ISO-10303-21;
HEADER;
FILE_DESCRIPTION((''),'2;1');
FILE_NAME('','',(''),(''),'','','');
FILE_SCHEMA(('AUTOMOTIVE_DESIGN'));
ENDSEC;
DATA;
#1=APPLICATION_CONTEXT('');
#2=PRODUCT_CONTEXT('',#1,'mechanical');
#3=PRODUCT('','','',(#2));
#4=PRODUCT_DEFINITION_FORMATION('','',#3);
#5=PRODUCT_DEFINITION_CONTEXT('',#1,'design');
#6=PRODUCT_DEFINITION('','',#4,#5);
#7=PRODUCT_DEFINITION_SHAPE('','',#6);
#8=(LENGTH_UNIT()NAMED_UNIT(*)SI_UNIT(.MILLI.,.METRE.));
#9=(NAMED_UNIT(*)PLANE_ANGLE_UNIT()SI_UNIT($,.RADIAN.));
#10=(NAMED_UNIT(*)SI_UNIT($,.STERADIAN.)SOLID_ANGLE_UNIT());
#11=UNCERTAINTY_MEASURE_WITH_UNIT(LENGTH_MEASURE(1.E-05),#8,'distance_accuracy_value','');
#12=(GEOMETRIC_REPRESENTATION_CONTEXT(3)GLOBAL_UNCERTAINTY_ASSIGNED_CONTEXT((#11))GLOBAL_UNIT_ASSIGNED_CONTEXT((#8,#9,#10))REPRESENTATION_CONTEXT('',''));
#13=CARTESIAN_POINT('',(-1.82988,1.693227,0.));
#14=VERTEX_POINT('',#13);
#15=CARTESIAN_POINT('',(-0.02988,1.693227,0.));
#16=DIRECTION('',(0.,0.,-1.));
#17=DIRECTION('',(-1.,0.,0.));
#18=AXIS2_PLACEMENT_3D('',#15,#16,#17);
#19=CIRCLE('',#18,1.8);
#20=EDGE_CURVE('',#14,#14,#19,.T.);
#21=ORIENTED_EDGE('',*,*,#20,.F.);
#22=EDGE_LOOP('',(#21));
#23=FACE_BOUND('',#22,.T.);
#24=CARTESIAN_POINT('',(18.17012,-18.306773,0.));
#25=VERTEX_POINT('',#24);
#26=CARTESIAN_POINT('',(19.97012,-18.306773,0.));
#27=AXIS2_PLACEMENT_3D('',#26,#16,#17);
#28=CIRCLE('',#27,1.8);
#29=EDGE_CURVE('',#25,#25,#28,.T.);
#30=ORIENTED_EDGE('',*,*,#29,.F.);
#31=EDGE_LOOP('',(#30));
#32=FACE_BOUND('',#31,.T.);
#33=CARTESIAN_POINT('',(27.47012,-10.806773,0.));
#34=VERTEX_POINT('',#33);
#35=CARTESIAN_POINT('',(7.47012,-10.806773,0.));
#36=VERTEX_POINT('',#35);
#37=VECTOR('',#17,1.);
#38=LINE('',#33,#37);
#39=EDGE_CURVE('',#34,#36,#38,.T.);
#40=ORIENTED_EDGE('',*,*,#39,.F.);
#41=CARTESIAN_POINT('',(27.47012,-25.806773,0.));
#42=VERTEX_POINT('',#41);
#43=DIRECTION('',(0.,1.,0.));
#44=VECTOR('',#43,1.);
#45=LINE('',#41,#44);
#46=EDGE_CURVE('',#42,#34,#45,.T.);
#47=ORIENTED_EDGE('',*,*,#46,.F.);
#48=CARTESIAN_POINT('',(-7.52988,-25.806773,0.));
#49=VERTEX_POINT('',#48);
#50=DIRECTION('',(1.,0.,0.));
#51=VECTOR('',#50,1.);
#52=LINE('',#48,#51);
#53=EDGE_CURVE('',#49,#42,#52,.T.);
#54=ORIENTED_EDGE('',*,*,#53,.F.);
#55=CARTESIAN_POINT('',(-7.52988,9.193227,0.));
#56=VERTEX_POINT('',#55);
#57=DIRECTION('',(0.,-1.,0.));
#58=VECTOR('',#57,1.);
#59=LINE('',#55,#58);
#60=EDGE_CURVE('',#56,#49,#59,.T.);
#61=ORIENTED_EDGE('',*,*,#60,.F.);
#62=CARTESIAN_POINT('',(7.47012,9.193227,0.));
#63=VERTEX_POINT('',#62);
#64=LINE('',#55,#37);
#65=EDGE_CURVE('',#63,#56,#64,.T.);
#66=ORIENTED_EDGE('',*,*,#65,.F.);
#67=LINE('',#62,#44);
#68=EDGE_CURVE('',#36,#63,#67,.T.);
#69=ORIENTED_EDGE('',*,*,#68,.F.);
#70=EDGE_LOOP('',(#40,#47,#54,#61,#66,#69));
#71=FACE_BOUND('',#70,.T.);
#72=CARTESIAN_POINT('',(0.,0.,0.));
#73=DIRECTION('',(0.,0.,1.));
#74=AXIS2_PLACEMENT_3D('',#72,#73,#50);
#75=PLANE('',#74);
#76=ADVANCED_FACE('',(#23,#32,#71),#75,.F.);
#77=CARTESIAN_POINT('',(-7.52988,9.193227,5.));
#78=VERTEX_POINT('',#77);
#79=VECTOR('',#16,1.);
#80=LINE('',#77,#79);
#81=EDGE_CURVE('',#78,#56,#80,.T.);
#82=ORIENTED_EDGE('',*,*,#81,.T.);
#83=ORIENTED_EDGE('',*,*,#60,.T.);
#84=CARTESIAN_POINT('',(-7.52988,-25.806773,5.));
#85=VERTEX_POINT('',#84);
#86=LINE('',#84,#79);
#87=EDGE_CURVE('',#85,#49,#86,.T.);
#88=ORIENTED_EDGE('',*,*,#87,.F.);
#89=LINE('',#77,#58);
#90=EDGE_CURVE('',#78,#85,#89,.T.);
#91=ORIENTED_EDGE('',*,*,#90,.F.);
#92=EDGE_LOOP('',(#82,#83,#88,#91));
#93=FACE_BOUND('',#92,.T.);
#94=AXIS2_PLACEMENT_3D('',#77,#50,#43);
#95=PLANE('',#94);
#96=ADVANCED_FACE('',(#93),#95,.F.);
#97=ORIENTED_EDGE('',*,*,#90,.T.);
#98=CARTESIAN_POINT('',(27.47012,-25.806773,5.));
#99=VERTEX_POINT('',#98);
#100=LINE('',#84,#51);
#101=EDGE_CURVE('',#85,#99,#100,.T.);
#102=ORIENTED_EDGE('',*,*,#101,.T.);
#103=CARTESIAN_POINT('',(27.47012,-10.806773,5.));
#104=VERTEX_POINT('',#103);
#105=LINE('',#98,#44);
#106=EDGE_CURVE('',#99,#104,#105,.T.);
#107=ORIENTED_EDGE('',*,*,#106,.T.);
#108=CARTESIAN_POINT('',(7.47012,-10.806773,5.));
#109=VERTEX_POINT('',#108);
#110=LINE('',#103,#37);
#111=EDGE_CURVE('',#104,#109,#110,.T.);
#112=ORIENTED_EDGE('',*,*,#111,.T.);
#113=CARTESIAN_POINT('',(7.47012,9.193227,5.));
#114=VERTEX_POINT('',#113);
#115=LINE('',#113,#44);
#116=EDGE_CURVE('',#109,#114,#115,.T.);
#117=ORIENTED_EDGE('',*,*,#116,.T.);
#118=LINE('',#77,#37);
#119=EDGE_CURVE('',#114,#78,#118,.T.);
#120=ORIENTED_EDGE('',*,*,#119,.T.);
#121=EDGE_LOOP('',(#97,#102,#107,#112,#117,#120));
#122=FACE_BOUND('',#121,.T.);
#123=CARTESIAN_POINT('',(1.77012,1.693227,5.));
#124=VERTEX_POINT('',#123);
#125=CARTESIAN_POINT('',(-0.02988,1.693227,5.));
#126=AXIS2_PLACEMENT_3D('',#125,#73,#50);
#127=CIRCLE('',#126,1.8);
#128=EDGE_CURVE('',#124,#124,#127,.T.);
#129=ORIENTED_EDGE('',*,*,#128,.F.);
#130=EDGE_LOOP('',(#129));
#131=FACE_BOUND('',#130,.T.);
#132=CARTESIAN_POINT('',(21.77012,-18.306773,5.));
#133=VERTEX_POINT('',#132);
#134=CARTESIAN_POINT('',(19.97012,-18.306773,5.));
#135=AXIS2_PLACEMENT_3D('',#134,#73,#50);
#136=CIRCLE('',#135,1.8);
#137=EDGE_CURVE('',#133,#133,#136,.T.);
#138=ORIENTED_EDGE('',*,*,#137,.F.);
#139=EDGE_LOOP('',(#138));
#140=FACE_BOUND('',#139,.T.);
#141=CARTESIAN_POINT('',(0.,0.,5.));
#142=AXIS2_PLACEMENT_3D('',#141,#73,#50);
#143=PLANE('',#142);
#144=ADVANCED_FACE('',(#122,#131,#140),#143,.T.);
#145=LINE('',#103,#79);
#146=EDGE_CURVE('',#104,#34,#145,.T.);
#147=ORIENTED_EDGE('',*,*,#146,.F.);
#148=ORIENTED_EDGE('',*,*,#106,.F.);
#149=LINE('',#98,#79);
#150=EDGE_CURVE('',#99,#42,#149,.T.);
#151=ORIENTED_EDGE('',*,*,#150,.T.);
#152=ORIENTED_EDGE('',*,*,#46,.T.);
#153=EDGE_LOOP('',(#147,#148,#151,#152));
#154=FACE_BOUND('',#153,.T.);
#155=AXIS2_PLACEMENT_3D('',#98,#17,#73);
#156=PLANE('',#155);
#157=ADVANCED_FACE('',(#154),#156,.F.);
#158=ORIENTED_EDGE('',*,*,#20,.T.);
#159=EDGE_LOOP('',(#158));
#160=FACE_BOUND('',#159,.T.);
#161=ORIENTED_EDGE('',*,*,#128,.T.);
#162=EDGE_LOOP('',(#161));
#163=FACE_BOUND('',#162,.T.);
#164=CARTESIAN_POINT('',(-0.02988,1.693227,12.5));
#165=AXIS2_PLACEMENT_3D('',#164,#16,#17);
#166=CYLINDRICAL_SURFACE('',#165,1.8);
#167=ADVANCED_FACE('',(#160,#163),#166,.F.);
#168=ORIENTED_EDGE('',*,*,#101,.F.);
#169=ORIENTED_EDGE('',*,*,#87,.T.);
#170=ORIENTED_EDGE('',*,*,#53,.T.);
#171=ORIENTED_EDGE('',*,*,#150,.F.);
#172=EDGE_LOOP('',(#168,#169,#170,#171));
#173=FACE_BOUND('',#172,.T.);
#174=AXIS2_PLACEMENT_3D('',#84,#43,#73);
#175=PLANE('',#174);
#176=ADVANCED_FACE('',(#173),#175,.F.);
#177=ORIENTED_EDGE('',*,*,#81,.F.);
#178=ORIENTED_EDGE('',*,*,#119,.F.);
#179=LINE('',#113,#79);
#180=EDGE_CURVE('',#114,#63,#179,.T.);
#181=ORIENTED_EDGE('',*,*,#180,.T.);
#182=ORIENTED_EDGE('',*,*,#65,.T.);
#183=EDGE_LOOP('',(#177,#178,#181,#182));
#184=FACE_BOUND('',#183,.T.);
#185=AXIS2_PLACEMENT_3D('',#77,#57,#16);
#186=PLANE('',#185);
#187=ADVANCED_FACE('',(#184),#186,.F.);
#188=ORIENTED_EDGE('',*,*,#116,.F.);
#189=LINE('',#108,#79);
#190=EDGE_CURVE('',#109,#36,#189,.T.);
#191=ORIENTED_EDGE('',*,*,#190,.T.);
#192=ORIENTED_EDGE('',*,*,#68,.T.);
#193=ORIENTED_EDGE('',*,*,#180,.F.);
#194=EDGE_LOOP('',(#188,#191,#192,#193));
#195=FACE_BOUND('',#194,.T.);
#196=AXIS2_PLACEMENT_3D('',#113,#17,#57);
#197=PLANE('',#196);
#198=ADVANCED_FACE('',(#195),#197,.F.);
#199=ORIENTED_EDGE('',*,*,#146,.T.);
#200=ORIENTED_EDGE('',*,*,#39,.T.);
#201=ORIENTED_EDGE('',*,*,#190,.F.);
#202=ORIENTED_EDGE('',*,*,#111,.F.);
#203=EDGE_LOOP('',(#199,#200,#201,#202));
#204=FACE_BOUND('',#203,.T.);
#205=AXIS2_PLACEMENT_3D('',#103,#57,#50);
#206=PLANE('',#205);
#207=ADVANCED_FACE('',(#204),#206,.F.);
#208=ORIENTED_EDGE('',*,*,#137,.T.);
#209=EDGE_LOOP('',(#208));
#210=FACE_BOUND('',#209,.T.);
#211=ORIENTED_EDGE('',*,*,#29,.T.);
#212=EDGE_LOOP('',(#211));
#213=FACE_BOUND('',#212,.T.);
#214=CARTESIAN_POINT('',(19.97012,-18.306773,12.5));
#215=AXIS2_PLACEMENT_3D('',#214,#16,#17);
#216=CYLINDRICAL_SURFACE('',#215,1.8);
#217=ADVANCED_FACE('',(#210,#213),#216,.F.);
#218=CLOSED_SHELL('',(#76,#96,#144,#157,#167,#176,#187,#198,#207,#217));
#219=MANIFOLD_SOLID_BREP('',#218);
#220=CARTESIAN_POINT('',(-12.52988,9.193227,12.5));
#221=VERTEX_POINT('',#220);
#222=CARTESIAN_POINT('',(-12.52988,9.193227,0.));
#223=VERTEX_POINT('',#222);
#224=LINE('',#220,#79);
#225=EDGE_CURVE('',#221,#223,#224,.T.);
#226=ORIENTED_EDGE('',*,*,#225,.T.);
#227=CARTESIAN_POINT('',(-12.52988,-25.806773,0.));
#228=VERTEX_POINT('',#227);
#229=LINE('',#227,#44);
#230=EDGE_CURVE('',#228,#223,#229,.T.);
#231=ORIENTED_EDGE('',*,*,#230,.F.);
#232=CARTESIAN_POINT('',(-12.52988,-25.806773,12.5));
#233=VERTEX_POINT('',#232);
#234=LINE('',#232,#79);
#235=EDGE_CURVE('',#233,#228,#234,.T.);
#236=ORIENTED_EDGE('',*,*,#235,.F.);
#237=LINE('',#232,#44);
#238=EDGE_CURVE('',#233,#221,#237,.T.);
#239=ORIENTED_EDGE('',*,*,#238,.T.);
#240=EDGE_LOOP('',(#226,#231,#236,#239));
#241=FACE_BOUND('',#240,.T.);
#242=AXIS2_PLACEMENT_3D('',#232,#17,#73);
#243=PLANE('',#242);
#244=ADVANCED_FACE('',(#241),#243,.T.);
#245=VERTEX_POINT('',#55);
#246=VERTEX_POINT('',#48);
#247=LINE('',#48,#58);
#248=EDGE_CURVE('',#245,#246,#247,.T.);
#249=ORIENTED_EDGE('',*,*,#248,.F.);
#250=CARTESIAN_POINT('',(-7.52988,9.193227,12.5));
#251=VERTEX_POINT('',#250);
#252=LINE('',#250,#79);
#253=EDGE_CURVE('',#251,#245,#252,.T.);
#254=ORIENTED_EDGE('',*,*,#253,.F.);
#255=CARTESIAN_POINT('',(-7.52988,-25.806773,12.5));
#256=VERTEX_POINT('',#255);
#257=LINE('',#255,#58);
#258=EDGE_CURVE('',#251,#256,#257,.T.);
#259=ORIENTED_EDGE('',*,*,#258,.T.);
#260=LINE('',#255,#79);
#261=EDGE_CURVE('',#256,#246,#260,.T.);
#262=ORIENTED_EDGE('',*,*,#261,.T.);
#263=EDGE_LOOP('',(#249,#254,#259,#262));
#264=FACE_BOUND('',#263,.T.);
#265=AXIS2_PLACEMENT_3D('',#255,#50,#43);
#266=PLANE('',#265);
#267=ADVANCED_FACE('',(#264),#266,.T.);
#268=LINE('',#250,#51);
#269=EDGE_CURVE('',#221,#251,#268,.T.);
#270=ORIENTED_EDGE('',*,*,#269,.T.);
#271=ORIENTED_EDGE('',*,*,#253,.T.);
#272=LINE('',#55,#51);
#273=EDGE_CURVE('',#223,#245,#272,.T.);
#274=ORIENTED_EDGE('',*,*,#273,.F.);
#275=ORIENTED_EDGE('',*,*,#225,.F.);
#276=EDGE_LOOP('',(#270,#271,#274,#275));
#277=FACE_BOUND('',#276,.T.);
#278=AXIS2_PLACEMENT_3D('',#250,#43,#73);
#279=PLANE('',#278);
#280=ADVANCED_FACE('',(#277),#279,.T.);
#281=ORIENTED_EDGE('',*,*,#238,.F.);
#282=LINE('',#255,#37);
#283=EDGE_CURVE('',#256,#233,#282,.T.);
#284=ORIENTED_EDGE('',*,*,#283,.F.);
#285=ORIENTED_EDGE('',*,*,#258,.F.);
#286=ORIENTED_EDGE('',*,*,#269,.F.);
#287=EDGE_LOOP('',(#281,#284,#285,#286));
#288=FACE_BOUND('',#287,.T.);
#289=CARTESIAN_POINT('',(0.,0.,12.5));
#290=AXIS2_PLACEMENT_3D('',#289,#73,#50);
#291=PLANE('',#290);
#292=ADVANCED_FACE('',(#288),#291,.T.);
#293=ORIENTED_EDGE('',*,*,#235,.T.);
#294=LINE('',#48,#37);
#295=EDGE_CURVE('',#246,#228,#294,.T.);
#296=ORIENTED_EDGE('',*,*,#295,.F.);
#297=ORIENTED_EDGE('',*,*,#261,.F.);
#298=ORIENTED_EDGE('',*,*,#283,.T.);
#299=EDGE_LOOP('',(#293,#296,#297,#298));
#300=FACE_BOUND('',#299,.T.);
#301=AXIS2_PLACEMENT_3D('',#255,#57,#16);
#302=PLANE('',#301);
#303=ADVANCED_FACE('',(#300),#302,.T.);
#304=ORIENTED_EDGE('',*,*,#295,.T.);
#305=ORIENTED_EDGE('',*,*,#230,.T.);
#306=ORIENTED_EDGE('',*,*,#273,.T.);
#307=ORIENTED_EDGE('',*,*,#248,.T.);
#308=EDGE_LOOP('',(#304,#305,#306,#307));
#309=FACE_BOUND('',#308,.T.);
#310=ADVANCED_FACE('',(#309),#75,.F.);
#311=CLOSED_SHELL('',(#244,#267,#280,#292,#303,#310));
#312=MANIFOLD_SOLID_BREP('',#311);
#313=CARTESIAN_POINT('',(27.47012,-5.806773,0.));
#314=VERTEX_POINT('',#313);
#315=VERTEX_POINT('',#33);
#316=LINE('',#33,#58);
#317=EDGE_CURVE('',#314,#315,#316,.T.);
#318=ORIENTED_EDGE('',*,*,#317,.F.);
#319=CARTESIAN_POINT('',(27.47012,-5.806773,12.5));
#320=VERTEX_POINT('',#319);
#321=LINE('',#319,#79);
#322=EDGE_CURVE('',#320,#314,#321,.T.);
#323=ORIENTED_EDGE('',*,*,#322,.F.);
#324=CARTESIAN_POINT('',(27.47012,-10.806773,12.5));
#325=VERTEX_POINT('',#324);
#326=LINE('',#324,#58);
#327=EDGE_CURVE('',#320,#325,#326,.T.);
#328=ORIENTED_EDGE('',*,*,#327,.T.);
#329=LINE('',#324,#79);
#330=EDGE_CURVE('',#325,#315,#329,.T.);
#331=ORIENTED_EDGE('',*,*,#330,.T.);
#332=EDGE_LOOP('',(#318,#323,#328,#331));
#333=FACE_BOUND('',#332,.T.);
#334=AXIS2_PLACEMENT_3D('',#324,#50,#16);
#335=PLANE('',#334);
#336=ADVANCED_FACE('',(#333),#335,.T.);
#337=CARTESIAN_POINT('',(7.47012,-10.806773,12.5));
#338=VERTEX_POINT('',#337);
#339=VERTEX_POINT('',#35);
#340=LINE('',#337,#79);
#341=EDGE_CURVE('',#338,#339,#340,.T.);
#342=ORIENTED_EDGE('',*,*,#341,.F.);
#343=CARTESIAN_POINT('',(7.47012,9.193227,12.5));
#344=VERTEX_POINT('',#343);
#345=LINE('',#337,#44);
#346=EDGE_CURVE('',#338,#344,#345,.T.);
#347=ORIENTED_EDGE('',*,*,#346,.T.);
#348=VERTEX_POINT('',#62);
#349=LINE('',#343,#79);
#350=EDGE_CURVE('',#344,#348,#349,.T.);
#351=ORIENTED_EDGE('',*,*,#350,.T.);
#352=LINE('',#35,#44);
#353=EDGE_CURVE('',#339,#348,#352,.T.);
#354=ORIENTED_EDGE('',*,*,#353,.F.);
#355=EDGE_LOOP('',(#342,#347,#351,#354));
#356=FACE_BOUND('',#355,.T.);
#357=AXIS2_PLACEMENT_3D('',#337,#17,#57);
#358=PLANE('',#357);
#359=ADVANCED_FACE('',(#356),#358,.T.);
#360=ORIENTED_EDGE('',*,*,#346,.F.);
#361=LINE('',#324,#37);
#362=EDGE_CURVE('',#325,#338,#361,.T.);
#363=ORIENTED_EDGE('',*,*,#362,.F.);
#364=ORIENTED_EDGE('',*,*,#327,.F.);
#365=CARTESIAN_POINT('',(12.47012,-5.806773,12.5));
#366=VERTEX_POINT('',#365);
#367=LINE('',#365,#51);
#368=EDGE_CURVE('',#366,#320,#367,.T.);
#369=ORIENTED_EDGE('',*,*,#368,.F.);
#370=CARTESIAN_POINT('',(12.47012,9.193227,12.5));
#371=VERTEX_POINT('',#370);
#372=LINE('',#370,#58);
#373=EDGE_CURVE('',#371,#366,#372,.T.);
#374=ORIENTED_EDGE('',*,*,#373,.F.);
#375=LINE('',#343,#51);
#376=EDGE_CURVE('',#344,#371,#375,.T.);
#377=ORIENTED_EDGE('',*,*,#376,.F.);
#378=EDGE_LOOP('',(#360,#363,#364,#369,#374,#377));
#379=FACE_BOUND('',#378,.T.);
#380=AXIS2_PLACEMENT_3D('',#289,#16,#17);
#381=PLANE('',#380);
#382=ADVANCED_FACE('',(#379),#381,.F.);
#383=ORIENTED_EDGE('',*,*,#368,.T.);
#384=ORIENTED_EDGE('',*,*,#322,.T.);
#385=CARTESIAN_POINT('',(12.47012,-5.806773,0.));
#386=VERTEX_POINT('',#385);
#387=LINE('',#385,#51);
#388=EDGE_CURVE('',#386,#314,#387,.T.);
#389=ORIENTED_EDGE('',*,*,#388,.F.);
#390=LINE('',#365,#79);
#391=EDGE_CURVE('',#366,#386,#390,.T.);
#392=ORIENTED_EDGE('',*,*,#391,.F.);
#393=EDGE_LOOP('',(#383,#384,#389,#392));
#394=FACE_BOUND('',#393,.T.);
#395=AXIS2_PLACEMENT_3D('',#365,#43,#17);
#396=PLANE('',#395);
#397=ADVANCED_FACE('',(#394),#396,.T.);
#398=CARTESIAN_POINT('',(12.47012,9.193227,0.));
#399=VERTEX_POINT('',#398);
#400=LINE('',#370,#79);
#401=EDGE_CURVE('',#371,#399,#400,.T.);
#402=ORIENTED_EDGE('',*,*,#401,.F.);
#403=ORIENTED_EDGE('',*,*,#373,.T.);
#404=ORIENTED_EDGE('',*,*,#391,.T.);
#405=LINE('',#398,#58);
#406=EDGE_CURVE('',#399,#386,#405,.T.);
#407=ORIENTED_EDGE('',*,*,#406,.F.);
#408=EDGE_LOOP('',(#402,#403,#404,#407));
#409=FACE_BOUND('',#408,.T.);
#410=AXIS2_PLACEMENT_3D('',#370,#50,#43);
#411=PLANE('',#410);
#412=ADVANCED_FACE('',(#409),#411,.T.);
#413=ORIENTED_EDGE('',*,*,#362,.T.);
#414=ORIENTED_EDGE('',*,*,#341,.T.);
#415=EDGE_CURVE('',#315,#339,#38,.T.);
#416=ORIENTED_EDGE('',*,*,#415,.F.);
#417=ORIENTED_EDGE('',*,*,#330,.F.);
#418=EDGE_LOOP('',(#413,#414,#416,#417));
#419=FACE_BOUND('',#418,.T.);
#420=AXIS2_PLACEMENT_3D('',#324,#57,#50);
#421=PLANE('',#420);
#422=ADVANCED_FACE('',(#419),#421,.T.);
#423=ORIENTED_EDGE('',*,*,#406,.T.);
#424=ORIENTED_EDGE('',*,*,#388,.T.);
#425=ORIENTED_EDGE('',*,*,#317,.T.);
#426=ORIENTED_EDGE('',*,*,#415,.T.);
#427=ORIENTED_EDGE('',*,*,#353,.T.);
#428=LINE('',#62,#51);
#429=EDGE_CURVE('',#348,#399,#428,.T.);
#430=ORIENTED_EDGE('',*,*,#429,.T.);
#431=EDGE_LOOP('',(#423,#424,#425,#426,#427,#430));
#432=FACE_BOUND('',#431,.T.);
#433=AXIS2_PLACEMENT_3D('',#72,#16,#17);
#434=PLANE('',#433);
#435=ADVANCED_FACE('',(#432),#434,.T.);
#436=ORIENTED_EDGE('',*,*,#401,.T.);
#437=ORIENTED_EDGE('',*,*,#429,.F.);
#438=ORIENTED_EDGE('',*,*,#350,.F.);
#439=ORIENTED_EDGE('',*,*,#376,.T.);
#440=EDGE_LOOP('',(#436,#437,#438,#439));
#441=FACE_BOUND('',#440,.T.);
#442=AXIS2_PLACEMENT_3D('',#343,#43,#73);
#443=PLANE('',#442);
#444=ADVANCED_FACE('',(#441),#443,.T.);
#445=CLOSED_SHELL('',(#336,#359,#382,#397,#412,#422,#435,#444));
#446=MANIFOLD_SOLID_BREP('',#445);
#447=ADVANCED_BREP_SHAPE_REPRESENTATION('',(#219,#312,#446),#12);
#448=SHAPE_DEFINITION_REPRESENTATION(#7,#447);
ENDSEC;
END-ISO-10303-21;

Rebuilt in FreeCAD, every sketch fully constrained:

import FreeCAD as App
import Part
import Sketcher

V = App.Vector


def add_polygon(sketch, points):
    """Adds a closed chain of lines whose ends are joined by coincident constraints."""
    first, n = sketch.GeometryCount, len(points)
    for a, b in zip(points, points[1:] + points[:1]):
        sketch.addGeometry(Part.LineSegment(App.Vector(*a, 0), App.Vector(*b, 0)), False)
    for i in range(n):
        sketch.addConstraint(Sketcher.Constraint("Coincident", first + i, 2, first + (i + 1) % n, 1))

doc = App.newDocument("Part")
body = doc.addObject("PartDesign::Body", "Body")

sketch1 = doc.addObject("Sketcher::SketchObject", "Sketch")
body.addObject(sketch1)
sketch1.AttachmentSupport = (doc.XY_Plane, [""])
sketch1.MapMode = "FlatFace"
add_polygon(sketch1, [(-8, -26), (27, -26), (27, -11), (7, -11), (7, 9), (-8, 9)])
sketch1.addConstraint(Sketcher.Constraint("Horizontal", 0))
sketch1.addConstraint(Sketcher.Constraint("Vertical", 1))
sketch1.addConstraint(Sketcher.Constraint("Horizontal", 2))
sketch1.addConstraint(Sketcher.Constraint("Vertical", 3))
sketch1.addConstraint(Sketcher.Constraint("Horizontal", 4))
sketch1.addConstraint(Sketcher.Constraint("Vertical", 5))
sketch1.addConstraint(Sketcher.Constraint("Equal", 4, 1))
sketch1.addConstraint(Sketcher.Constraint("Equal", 2, 3))
sketch1.addConstraint(Sketcher.Constraint("DistanceX", 0, 1, 0, 2, 35.0))
sketch1.addConstraint(Sketcher.Constraint("DistanceX", 2, 2, 2, 1, 20.0))
sketch1.addConstraint(Sketcher.Constraint("DistanceX", -1, 1, 0, 2, 27.47012))
sketch1.addConstraint(Sketcher.Constraint("DistanceY", 0, 2, -1, 1, 25.806773))
pad1 = doc.addObject("PartDesign::Pad", "Pad")
body.addObject(pad1)
pad1.Profile = sketch1
pad1.Length = 5

sketch2 = doc.addObject("Sketcher::SketchObject", "Sketch001")
body.addObject(sketch2)
sketch2.AttachmentSupport = (doc.XY_Plane, [""])
sketch2.MapMode = "FlatFace"
sketch2.addGeometry(Part.Circle(V(0, 1.7, 0), V(0, 0, 1), 1.8), False)
sketch2.addGeometry(Part.Circle(V(20, -18.3, 0), V(0, 0, 1), 1.8), False)
sketch2.addConstraint(Sketcher.Constraint("Equal", 0, 1))
sketch2.addConstraint(Sketcher.Constraint("Diameter", 0, 3.6))
sketch2.addConstraint(Sketcher.Constraint("DistanceX", 0, 3, 1, 3, 20.0))
sketch2.addConstraint(Sketcher.Constraint("DistanceY", 1, 3, 0, 3, 20.0))
sketch2.addConstraint(Sketcher.Constraint("DistanceX", 0, 3, -1, 1, 0.02988))
sketch2.addConstraint(Sketcher.Constraint("DistanceY", -1, 1, 0, 3, 1.693227))
pocket1 = doc.addObject("PartDesign::Pocket", "Pocket")
body.addObject(pocket1)
pocket1.Profile = sketch2
pocket1.Type = "ThroughAll"
pocket1.Reversed = True
body2 = doc.addObject("PartDesign::Body", "Body001")

sketch3 = doc.addObject("Sketcher::SketchObject", "Sketch002")
body2.addObject(sketch3)
sketch3.AttachmentSupport = (doc.getObject("XY_Plane001"), [""])
sketch3.MapMode = "FlatFace"
add_polygon(sketch3, [(7.5, 9.2), (12.5, 9.2), (12.5, -5.8), (27.5, -5.8), (27.5, -10.8), (7.5, -10.8)])
sketch3.addConstraint(Sketcher.Constraint("Horizontal", 0))
sketch3.addConstraint(Sketcher.Constraint("Vertical", 1))
sketch3.addConstraint(Sketcher.Constraint("Horizontal", 2))
sketch3.addConstraint(Sketcher.Constraint("Vertical", 3))
sketch3.addConstraint(Sketcher.Constraint("Horizontal", 4))
sketch3.addConstraint(Sketcher.Constraint("Vertical", 5))
sketch3.addConstraint(Sketcher.Constraint("Equal", 2, 1))
sketch3.addConstraint(Sketcher.Constraint("Equal", 0, 3))
sketch3.addConstraint(Sketcher.Constraint("DistanceX", 0, 1, 0, 2, 5.0))
sketch3.addConstraint(Sketcher.Constraint("DistanceX", 2, 1, 2, 2, 15.0))
sketch3.addConstraint(Sketcher.Constraint("DistanceX", -1, 1, 0, 2, 12.47012))
sketch3.addConstraint(Sketcher.Constraint("DistanceY", -1, 1, 0, 2, 9.193227))
pad2 = doc.addObject("PartDesign::Pad", "Pad001")
body2.addObject(pad2)
pad2.Profile = sketch3
pad2.Length = 12.5
body3 = doc.addObject("PartDesign::Body", "Body002")

sketch4 = doc.addObject("Sketcher::SketchObject", "Sketch003")
body3.addObject(sketch4)
sketch4.AttachmentSupport = (doc.getObject("XY_Plane002"), [""])
sketch4.MapMode = "FlatFace"
add_polygon(sketch4, [(-8, 9), (-8, -26), (-13, -26), (-13, 9)])
sketch4.addConstraint(Sketcher.Constraint("Vertical", 0))
sketch4.addConstraint(Sketcher.Constraint("Horizontal", 1))
sketch4.addConstraint(Sketcher.Constraint("Vertical", 2))
sketch4.addConstraint(Sketcher.Constraint("Horizontal", 3))
sketch4.addConstraint(Sketcher.Constraint("DistanceX", 1, 2, 1, 1, 5.0))
sketch4.addConstraint(Sketcher.Constraint("DistanceY", 0, 2, 0, 1, 35.0))
sketch4.addConstraint(Sketcher.Constraint("DistanceX", 0, 2, -1, 1, 7.52988))
sketch4.addConstraint(Sketcher.Constraint("DistanceY", 0, 2, -1, 1, 25.806773))
pad3 = doc.addObject("PartDesign::Pad", "Pad002")
body3.addObject(pad3)
pad3.Profile = sketch4
pad3.Length = 12.5

doc.recompute()
